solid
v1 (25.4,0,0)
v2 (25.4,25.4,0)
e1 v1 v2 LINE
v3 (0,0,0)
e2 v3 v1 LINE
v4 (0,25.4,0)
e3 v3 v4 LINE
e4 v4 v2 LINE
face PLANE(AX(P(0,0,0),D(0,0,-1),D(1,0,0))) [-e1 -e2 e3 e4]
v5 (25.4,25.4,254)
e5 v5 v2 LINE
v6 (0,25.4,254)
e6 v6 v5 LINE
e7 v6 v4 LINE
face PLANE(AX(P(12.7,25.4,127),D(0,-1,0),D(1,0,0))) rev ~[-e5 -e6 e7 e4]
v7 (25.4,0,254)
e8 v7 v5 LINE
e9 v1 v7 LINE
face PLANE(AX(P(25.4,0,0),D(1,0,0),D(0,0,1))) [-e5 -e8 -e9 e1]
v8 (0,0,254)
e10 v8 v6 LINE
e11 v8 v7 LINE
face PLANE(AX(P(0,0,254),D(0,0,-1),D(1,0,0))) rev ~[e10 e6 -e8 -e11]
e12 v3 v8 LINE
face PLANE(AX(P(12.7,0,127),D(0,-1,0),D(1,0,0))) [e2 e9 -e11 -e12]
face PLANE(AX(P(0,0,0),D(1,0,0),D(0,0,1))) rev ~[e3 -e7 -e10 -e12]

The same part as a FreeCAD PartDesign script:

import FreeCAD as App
import Part
import Sketcher
from FreeCAD import Vector
Q = App.Units.Quantity

doc = App.newDocument("Part")
body = doc.addObject("PartDesign::Body", "Body")

sketch1 = doc.addObject("Sketcher::SketchObject", "Sketch")
body.addObject(sketch1)
sketch1.AttachmentSupport = (doc.XZ_Plane, [""])
sketch1.MapMode = "FlatFace"
sketch1.addGeometry(Part.LineSegment(Vector(0, 254, 0), Vector(0, 0, 0)), False)
sketch1.addGeometry(Part.LineSegment(Vector(0, 0, 0), Vector(25, 0, 0)), False)
sketch1.addGeometry(Part.LineSegment(Vector(25, 0, 0), Vector(25, 254, 0)), False)
sketch1.addGeometry(Part.LineSegment(Vector(25, 254, 0), Vector(0, 254, 0)), False)
sketch1.addConstraint(Sketcher.Constraint("Coincident", 0, 2, 1, 1))
sketch1.addConstraint(Sketcher.Constraint("Coincident", 1, 2, 2, 1))
sketch1.addConstraint(Sketcher.Constraint("Coincident", 2, 2, 3, 1))
sketch1.addConstraint(Sketcher.Constraint("Coincident", 3, 2, 0, 1))
sketch1.addConstraint(Sketcher.Constraint("Vertical", 0))
sketch1.addConstraint(Sketcher.Constraint("Horizontal", 1))
sketch1.addConstraint(Sketcher.Constraint("Vertical", 2))
sketch1.addConstraint(Sketcher.Constraint("Horizontal", 3))
sketch1.addConstraint(Sketcher.Constraint("Coincident", 0, 2, -1, 1))
sketch1.addConstraint(Sketcher.Constraint("DistanceX", 1, 1, 1, 2, Q("1 in")))
sketch1.addConstraint(Sketcher.Constraint("DistanceY", 0, 2, 0, 1, Q("10 in")))
pad1 = doc.addObject("PartDesign::Pad", "Pad")
body.addObject(pad1)
pad1.Profile = sketch1
pad1.Length = Q("1 in")
pad1.Reversed = True

sketch2 = doc.addObject("Sketcher::SketchObject", "Sketch001")
body.addObject(sketch2)
sketch2.AttachmentSupport = (doc.XY_Plane, [""])
sketch2.MapMode = "FlatFace"
sketch2.AttachmentOffset = App.Placement(Vector(0, 0, 10 * 25.4), App.Rotation())
sketch2.addGeometry(Part.LineSegment(Vector(0, 25, 0), Vector(0, 0, 0)), False)
sketch2.addGeometry(Part.LineSegment(Vector(0, 0, 0), Vector(25, 0, 0)), False)
sketch2.addGeometry(Part.LineSegment(Vector(25, 0, 0), Vector(25, 25, 0)), False)
sketch2.addGeometry(Part.LineSegment(Vector(25, 25, 0), Vector(0, 25, 0)), False)
sketch2.addConstraint(Sketcher.Constraint("Coincident", 0, 2, 1, 1))
sketch2.addConstraint(Sketcher.Constraint("Coincident", 1, 2, 2, 1))
sketch2.addConstraint(Sketcher.Constraint("Coincident", 2, 2, 3, 1))
sketch2.addConstraint(Sketcher.Constraint("Coincident", 3, 2, 0, 1))
sketch2.addConstraint(Sketcher.Constraint("Vertical", 0))
sketch2.addConstraint(Sketcher.Constraint("Horizontal", 1))
sketch2.addConstraint(Sketcher.Constraint("Vertical", 2))
sketch2.addConstraint(Sketcher.Constraint("Horizontal", 3))
sketch2.addConstraint(Sketcher.Constraint("Coincident", 0, 2, -1, 1))
sketch2.addConstraint(Sketcher.Constraint("Equal", 3, 0))
sketch2.addConstraint(Sketcher.Constraint("DistanceX", 1, 1, 1, 2, Q("1 in")))
pad2 = doc.addObject("PartDesign::Pad", "Pad001")
body.addObject(pad2)
pad2.Profile = sketch2
pad2.Length = Q("8 in")
pad2.Reversed = True

doc.recompute()
